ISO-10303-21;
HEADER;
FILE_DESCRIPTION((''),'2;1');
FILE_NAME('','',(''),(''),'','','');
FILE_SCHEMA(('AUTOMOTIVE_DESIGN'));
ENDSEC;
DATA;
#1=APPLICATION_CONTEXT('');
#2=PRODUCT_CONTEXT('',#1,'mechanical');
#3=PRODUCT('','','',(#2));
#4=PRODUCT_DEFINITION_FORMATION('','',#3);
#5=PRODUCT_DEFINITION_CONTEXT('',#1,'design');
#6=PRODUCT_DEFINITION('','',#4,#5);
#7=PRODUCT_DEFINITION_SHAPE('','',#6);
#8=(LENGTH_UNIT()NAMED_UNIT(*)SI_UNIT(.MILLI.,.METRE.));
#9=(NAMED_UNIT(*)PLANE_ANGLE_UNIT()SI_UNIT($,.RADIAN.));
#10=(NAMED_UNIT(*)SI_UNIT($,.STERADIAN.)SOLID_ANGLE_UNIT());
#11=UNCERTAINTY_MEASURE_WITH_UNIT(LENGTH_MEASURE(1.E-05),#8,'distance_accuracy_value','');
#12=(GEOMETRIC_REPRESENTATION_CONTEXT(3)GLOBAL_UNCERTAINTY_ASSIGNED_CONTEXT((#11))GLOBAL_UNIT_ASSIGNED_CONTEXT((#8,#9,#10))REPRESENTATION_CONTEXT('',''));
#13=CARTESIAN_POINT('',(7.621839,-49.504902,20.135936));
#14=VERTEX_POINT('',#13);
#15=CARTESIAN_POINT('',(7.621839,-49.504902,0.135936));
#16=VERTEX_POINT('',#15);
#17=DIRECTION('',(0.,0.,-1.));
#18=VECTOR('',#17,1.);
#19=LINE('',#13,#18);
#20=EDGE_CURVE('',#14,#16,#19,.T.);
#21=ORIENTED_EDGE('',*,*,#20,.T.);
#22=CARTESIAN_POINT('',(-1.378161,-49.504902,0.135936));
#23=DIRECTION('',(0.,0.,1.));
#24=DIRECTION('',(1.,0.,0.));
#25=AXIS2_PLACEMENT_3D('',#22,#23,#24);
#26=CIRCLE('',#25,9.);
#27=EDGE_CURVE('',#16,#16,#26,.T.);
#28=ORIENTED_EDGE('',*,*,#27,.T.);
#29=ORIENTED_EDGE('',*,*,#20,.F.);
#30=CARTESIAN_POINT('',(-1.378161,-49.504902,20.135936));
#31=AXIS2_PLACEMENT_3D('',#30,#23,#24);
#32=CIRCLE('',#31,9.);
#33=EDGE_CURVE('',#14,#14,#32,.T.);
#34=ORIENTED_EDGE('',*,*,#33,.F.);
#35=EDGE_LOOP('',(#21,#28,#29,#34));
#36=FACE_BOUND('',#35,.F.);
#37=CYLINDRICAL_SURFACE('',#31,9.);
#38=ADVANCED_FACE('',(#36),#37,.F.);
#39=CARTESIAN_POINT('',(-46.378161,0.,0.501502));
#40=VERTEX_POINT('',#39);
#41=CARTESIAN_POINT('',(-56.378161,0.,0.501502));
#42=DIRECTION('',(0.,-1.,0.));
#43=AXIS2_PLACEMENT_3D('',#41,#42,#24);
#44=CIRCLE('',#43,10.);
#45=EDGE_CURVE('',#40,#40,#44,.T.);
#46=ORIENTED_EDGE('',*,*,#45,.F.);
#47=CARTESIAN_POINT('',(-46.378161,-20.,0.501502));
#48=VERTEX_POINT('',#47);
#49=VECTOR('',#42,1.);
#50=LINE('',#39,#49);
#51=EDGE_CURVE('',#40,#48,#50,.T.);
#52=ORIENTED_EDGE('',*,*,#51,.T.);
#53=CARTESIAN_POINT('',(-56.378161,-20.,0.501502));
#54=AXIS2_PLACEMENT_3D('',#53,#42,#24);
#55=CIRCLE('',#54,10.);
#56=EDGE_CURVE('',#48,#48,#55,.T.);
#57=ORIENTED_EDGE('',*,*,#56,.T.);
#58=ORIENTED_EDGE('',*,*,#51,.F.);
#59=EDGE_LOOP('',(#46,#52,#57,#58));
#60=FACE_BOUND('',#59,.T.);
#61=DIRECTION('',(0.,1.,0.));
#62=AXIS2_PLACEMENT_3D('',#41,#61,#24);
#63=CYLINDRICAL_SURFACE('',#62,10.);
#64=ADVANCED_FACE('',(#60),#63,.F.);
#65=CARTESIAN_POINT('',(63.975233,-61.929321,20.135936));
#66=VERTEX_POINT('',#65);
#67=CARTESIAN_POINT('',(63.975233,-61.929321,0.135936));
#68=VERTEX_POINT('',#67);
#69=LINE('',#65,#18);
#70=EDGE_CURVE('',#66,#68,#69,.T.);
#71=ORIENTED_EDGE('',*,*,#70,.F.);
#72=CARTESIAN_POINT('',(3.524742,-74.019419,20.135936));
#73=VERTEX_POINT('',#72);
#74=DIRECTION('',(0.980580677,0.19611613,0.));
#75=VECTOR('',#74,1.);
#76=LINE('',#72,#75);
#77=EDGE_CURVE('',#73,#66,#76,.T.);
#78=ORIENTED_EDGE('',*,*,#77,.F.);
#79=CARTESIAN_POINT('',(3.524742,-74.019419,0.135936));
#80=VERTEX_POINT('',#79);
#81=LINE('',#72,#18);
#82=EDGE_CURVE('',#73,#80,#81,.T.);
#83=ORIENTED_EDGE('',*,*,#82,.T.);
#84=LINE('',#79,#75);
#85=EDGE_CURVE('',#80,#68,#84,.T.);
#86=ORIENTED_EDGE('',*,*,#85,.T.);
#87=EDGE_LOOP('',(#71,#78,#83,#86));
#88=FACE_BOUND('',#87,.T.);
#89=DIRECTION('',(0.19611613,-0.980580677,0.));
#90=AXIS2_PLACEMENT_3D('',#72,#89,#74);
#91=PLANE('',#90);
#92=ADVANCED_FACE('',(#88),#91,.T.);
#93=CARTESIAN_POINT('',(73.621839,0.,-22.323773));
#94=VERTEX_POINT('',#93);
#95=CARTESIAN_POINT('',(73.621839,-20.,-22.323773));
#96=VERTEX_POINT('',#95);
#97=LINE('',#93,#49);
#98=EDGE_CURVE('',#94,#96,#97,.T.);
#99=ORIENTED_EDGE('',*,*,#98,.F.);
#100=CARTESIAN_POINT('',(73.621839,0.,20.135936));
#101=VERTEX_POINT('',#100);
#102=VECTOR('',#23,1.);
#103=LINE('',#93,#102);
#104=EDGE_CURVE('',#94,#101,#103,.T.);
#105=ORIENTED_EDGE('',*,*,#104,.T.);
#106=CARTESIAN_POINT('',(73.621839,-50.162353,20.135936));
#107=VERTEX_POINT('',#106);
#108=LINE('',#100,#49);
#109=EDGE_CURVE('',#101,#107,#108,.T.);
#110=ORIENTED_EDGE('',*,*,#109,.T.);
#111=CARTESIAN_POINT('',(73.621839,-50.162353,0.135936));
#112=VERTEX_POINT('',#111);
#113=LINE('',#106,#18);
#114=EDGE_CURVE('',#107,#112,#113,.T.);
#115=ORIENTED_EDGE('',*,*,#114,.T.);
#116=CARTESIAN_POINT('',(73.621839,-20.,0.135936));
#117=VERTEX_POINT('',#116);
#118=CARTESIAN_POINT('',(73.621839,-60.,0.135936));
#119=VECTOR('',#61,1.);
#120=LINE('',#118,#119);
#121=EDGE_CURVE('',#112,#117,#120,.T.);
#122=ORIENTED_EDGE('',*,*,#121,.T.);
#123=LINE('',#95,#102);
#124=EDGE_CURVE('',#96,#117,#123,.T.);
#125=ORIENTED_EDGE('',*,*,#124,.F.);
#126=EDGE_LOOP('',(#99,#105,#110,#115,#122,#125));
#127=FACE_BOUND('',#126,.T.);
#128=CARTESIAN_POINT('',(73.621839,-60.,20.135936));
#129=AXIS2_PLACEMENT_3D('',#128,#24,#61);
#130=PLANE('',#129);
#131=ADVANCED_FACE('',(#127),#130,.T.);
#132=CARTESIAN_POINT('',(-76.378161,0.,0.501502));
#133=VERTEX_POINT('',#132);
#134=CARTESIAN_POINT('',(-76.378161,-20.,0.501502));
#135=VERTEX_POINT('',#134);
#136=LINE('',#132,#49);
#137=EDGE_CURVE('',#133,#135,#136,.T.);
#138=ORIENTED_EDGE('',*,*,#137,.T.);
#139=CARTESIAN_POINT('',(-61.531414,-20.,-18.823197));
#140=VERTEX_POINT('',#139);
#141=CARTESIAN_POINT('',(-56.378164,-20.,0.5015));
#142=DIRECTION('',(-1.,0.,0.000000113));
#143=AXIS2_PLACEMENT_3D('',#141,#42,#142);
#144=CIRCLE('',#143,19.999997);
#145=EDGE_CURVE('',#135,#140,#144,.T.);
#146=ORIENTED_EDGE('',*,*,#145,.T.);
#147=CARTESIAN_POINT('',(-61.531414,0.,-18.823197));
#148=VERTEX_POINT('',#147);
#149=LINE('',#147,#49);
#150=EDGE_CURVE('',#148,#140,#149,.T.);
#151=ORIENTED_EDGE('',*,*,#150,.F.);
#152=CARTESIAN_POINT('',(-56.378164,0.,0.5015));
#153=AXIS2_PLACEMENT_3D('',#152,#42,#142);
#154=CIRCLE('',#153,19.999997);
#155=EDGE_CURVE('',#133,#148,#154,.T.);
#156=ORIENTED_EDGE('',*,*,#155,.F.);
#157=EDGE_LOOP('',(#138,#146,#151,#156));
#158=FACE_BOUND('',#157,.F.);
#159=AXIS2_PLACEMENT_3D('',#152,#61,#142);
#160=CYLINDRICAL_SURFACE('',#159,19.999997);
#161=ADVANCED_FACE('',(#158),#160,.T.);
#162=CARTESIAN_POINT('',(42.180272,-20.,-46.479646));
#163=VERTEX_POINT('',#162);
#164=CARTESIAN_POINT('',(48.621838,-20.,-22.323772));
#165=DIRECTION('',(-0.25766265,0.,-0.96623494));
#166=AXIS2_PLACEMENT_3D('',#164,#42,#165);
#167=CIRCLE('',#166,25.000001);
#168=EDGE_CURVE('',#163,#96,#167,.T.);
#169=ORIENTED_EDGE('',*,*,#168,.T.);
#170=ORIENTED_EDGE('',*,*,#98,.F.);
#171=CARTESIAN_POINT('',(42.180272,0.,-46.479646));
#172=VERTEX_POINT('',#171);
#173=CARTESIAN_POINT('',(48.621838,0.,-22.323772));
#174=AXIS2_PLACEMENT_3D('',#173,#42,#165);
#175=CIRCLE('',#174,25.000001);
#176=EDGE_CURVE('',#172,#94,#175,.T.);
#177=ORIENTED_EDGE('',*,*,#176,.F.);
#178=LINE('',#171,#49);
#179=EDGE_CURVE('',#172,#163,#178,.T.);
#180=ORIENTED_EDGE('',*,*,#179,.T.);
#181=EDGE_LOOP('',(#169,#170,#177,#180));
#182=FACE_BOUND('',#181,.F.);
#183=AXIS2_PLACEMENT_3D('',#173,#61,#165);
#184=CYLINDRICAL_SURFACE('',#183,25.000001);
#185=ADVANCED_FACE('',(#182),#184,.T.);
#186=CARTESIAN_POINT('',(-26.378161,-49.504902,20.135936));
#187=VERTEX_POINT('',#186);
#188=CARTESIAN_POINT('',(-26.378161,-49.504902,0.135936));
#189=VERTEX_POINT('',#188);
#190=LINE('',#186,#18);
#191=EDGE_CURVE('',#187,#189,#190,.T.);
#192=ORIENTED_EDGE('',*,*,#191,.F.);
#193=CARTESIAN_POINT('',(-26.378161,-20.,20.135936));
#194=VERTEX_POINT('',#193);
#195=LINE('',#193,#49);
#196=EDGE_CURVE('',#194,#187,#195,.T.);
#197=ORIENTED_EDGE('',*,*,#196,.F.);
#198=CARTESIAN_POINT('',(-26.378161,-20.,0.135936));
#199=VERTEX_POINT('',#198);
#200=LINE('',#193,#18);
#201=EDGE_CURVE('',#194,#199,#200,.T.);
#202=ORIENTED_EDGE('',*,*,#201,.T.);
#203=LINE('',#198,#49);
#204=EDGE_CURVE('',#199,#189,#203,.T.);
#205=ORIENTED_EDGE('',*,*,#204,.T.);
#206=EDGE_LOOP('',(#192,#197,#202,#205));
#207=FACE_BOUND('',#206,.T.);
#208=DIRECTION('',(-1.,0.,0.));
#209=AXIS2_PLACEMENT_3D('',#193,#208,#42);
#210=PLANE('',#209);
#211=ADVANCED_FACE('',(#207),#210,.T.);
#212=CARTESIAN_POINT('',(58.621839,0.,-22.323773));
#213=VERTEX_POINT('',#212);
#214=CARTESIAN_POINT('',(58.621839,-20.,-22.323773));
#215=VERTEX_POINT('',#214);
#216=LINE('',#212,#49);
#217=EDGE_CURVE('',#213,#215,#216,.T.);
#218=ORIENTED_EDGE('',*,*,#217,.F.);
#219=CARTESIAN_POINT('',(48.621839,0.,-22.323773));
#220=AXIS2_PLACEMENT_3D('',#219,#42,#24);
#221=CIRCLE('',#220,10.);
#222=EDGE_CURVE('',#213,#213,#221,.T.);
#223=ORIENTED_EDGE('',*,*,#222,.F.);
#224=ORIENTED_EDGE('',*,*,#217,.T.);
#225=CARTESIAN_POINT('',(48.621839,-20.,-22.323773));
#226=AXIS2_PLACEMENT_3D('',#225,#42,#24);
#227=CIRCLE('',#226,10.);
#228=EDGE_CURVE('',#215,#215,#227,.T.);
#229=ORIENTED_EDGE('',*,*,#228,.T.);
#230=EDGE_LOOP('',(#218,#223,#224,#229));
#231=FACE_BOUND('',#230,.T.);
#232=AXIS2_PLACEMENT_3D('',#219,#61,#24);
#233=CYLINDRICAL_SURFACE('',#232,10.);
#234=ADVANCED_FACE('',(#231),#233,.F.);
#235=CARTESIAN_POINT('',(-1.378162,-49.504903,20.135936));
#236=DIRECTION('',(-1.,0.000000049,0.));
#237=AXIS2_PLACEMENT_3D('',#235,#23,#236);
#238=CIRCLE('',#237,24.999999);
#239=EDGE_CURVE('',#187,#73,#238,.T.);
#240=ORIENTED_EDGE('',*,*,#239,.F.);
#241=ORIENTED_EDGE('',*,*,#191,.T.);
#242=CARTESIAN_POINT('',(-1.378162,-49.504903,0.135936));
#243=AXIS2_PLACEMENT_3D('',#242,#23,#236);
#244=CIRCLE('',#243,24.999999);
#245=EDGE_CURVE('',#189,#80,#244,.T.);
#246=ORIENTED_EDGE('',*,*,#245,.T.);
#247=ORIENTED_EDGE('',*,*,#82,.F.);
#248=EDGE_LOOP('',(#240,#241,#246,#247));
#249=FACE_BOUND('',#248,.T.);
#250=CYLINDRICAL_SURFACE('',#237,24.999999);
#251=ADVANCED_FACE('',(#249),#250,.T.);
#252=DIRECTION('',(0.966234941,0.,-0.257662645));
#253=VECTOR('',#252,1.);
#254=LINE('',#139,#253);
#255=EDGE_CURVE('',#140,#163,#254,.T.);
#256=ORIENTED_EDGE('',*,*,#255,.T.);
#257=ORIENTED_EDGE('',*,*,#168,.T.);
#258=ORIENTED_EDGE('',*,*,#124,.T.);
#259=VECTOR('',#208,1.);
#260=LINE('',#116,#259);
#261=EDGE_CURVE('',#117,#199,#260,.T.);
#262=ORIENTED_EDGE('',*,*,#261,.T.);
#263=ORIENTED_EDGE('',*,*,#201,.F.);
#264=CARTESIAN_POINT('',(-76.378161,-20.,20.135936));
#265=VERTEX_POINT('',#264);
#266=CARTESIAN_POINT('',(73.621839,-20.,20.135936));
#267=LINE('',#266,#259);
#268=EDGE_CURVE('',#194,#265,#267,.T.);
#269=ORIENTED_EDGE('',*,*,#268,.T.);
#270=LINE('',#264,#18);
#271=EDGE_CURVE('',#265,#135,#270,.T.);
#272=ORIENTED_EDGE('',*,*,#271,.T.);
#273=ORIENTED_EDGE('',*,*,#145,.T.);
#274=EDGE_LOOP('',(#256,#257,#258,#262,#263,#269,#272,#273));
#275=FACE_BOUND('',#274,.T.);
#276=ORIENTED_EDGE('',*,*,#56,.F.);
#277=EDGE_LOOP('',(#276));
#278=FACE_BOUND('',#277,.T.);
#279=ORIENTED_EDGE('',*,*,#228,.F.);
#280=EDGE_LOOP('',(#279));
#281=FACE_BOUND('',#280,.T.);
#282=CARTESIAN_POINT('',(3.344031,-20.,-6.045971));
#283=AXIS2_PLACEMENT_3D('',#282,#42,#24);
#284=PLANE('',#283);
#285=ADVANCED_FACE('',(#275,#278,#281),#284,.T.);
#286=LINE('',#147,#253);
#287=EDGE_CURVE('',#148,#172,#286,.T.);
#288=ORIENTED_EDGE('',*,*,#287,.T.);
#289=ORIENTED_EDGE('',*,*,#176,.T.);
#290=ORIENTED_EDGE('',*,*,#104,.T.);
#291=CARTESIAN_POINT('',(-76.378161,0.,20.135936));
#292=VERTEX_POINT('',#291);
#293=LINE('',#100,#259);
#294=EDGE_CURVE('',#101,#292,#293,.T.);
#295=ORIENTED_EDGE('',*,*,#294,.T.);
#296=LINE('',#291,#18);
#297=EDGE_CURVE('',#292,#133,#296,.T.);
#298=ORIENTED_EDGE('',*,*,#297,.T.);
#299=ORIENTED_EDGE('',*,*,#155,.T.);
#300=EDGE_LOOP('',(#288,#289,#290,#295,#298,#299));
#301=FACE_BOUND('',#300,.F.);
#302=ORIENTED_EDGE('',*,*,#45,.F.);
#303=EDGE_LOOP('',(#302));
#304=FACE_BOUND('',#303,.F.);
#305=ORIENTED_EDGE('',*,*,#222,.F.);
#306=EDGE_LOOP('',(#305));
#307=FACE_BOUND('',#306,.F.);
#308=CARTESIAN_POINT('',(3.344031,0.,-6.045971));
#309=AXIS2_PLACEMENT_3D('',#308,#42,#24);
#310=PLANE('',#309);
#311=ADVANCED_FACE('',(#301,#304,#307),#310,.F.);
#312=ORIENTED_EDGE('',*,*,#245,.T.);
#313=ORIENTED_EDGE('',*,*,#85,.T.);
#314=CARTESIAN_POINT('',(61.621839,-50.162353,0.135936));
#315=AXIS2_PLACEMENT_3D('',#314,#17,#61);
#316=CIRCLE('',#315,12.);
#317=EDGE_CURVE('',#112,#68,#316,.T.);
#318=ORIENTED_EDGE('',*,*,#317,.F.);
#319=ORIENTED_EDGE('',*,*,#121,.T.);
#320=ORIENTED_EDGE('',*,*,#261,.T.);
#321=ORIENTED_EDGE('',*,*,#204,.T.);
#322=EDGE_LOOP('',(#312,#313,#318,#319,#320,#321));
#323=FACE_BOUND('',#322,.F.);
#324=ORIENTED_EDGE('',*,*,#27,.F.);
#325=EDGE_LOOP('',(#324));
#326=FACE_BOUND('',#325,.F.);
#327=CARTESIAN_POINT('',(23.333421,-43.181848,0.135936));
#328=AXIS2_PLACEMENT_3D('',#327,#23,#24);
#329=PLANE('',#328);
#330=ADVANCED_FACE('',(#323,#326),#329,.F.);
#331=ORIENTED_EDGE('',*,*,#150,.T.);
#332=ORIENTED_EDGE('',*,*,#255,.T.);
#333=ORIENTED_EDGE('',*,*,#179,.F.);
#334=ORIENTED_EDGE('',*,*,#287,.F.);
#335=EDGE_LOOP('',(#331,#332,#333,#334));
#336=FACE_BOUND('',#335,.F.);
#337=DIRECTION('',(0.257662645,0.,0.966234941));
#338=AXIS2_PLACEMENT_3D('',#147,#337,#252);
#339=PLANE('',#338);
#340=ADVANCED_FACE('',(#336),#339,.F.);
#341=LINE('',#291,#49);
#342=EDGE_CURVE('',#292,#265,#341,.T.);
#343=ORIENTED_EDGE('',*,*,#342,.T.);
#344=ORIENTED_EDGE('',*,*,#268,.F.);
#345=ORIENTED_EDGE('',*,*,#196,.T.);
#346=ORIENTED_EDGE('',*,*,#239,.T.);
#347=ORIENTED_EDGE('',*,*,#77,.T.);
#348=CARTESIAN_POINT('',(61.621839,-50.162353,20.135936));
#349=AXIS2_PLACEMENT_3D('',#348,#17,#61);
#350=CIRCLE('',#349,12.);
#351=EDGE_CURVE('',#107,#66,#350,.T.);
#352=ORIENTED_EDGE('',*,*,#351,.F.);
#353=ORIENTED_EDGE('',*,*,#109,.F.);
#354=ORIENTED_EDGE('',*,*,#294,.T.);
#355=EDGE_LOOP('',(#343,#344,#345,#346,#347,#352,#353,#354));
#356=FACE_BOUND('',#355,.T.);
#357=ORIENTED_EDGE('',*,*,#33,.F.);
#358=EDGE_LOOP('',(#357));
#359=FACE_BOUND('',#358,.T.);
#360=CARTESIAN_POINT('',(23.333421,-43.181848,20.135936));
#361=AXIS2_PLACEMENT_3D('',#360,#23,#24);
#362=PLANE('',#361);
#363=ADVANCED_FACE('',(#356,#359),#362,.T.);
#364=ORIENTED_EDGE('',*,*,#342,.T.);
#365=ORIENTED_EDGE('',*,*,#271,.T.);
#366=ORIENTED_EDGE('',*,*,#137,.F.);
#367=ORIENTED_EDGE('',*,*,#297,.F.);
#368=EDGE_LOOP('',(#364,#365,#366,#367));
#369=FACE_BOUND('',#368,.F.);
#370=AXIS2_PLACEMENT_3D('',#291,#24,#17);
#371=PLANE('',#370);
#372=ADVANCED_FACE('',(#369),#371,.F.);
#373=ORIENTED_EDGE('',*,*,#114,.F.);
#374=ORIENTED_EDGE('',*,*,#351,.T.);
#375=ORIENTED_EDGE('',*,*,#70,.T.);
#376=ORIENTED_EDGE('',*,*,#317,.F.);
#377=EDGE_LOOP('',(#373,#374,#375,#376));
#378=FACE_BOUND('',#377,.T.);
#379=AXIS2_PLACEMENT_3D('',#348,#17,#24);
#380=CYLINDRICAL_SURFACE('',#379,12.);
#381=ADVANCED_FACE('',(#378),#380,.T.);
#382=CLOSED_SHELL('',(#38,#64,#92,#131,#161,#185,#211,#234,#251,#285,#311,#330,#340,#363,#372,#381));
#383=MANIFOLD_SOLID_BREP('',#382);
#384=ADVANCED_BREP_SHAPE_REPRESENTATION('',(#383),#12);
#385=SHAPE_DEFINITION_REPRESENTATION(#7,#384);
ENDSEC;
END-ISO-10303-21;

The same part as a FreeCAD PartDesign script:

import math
import FreeCAD as App
import Part
import Sketcher
from FreeCAD import Vector


def edges_at(feature, points):
    """Names of the edges that pass closest to the given points."""
    edges = feature.Shape.Edges
    near = lambda p: min(range(len(edges)), key=lambda i: edges[i].distToShape(Part.Vertex(*p))[0])
    return sorted({f"Edge{near(p) + 1}" for p in points})

doc = App.newDocument("Part")
body = doc.addObject("PartDesign::Body", "Body")

# Sketch on XZ plane
sketch1 = body.newObject("Sketcher::SketchObject", "Sketch")
sketch1.AttachmentSupport = (doc.getObject("XZ_Plane"), [""])
sketch1.MapMode = "FlatFace"
sketch1.addGeometry(Part.LineSegment(Vector(-76.378161, 20.135936, 0), Vector(-76.378161, 0.501502, 0)), False)
sketch1.addGeometry(Part.ArcOfCircle(Part.Circle(Vector(-56.378164, 0.5015, 0), Vector(0, 0, 1), 19.999997), math.radians(179.999994), math.radians(255.068589)), False)
sketch1.addGeometry(Part.LineSegment(Vector(-61.531414, -18.823197, 0), Vector(42.180272, -46.479646, 0)), False)
sketch1.addGeometry(Part.ArcOfCircle(Part.Circle(Vector(48.621838, -22.323772, 0), Vector(0, 0, 1), 25.000001), math.radians(-104.931417), math.radians(-0.000002)), False)
sketch1.addGeometry(Part.LineSegment(Vector(73.621839, -22.323773, 0), Vector(73.621839, 20.135936, 0)), False)
sketch1.addGeometry(Part.LineSegment(Vector(73.621839, 20.135936, 0), Vector(-76.378161, 20.135936, 0)), False)
sketch1.addGeometry(Part.Circle(Vector(48.621839, -22.323773, 0), Vector(0, 0, 1), 10), False)
sketch1.addGeometry(Part.Circle(Vector(-56.378161, 0.501502, 0), Vector(0, 0, 1), 10), False)
sketch1.addConstraint(Sketcher.Constraint("Tangent", 0, 2, 1, 1))
sketch1.addConstraint(Sketcher.Constraint("Tangent", 1, 2, 2, 1))
sketch1.addConstraint(Sketcher.Constraint("Tangent", 2, 2, 3, 1))
sketch1.addConstraint(Sketcher.Constraint("Tangent", 3, 2, 4, 1))
sketch1.addConstraint(Sketcher.Constraint("Coincident", 4, 2, 5, 1))
sketch1.addConstraint(Sketcher.Constraint("Coincident", 5, 2, 0, 1))
sketch1.addConstraint(Sketcher.Constraint("Vertical", 0))
sketch1.addConstraint(Sketcher.Constraint("Vertical", 4))
sketch1.addConstraint(Sketcher.Constraint("Horizontal", 5))
sketch1.addConstraint(Sketcher.Constraint("Coincident", 6, 3, 3, 3))
sketch1.addConstraint(Sketcher.Constraint("Coincident", 7, 3, 1, 3))
sketch1.addConstraint(Sketcher.Constraint("Equal", 6, 7))
sketch1.addConstraint(Sketcher.Constraint("Diameter", 6, 20.0))
sketch1.addConstraint(Sketcher.Constraint("Radius", 3, 25.000001))
sketch1.addConstraint(Sketcher.Constraint("DistanceX", 5, 2, 5, 1, 150.0))
sketch1.addConstraint(Sketcher.Constraint("DistanceX", 7, 3, 3, 3, 104.999999))
sketch1.addConstraint(Sketcher.Constraint("DistanceY", 4, 1, 4, 2, 42.459709))
sketch1.addConstraint(Sketcher.Constraint("DistanceY", -1, 1, 1, 3, 0.5015))
sketch1.addConstraint(Sketcher.Constraint("DistanceY", 1, 2, 7, 3, 19.324699))
sketch1.addConstraint(Sketcher.Constraint("DistanceX", -1, 1, 3, 3, 48.621838))
pad1 = body.newObject("PartDesign::Pad", "Pad")
pad1.Profile = sketch1
pad1.Length = 20

# Sketch on XY plane
sketch2 = body.newObject("Sketcher::SketchObject", "Sketch001")
sketch2.AttachmentSupport = (doc.getObject("XY_Plane"), [""])
sketch2.MapMode = "FlatFace"
sketch2.AttachmentOffset = App.Placement(Vector(0, 0, 20.135936), App.Rotation())
sketch2.addGeometry(Part.LineSegment(Vector(73.621839, -60, 0), Vector(73.621839, -20, 0)), False)
sketch2.addGeometry(Part.LineSegment(Vector(73.621839, -20, 0), Vector(-26.378161, -20, 0)), False)
sketch2.addGeometry(Part.LineSegment(Vector(-26.378161, -20, 0), Vector(-26.378161, -49.504902, 0)), False)
sketch2.addGeometry(Part.ArcOfCircle(Part.Circle(Vector(-1.378162, -49.504903, 0), Vector(0, 0, 1), 24.999999), math.radians(179.999997), math.radians(281.309934)), False)
sketch2.addGeometry(Part.LineSegment(Vector(3.524742, -74.019419, 0), Vector(73.621839, -60, 0)), False)
sketch2.addGeometry(Part.Circle(Vector(-1.378161, -49.504902, 0), Vector(0, 0, 1), 9), False)
sketch2.addConstraint(Sketcher.Constraint("Coincident", 0, 2, 1, 1))
sketch2.addConstraint(Sketcher.Constraint("Coincident", 1, 2, 2, 1))
sketch2.addConstraint(Sketcher.Constraint("Tangent", 2, 2, 3, 1))
sketch2.addConstraint(Sketcher.Constraint("Tangent", 3, 2, 4, 1))
sketch2.addConstraint(Sketcher.Constraint("Coincident", 4, 2, 0, 1))
sketch2.addConstraint(Sketcher.Constraint("Vertical", 0))
sketch2.addConstraint(Sketcher.Constraint("Horizontal", 1))
sketch2.addConstraint(Sketcher.Constraint("Vertical", 2))
sketch2.addConstraint(Sketcher.Constraint("Coincident", 5, 3, 3, 3))
sketch2.addConstraint(Sketcher.Constraint("Diameter", 5, 18.0))
sketch2.addConstraint(Sketcher.Constraint("Radius", 3, 24.999999))
sketch2.addConstraint(Sketcher.Constraint("DistanceX", 1, 2, 1, 1, 100.0))
sketch2.addConstraint(Sketcher.Constraint("DistanceY", 0, 1, 0, 2, 40.0))
sketch2.addConstraint(Sketcher.Constraint("DistanceY", 0, 2, -1, 1, 20.0))
sketch2.addConstraint(Sketcher.Constraint("DistanceY", 2, 2, 2, 1, 29.504902))
sketch2.addConstraint(Sketcher.Constraint("DistanceX", 3, 3, -1, 1, 1.378162))
pad2 = body.newObject("PartDesign::Pad", "Pad001")
pad2.Profile = sketch2
pad2.Length = 20
pad2.Reversed = True
doc.recompute()

fillet = body.newObject("PartDesign::Fillet", "Fillet")
fillet.Base = (pad2, edges_at(pad2, [(73.622, -60, 10.136)]))
fillet.Radius = 12

doc.recompute()
